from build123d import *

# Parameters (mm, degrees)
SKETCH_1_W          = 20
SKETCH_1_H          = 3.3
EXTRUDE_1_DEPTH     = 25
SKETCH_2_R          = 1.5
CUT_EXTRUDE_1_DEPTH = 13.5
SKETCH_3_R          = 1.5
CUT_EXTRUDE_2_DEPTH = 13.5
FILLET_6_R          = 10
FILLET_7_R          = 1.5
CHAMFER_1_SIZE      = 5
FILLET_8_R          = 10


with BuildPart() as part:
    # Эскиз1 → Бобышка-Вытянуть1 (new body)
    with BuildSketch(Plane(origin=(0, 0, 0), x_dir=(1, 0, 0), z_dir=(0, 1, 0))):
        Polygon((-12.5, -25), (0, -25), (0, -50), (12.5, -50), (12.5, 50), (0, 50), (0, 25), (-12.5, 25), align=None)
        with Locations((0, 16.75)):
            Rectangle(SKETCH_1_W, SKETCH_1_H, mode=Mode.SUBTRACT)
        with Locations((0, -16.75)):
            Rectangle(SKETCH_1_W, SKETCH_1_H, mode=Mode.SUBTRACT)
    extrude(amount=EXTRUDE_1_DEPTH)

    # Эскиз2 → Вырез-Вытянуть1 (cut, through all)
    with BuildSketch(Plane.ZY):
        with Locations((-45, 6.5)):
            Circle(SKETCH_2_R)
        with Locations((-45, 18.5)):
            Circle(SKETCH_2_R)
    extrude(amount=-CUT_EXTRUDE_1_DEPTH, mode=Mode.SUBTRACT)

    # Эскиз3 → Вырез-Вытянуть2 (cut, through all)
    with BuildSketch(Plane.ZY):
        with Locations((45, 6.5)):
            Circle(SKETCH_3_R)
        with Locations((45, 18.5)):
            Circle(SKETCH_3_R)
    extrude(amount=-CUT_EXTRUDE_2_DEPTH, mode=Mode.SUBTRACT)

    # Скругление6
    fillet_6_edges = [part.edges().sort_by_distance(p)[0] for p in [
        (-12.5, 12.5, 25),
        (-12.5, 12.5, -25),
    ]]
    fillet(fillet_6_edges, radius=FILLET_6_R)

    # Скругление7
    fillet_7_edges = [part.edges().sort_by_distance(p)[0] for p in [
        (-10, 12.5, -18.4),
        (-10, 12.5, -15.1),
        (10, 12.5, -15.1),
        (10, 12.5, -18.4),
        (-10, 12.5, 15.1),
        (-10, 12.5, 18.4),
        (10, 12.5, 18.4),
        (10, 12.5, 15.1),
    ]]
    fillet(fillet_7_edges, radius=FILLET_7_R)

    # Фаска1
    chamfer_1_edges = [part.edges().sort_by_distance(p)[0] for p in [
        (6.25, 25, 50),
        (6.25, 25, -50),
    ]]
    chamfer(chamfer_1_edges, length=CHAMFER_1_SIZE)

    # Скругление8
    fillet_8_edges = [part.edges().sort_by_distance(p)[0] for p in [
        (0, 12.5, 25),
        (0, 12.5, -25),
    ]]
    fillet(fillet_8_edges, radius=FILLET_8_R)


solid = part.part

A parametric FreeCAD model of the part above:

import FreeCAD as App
import Part
import Sketcher
Q = App.Units.Quantity


def edges_at(feature, points):
    """Names of the edges that pass closest to the given points."""
    edges = feature.Shape.Edges
    near = lambda p: min(range(len(edges)), key=lambda i: edges[i].distToShape(Part.Vertex(*p))[0])
    return sorted({f"Edge{near(p) + 1}" for p in points})


def add_polygon(sketch, points):
    """Adds a closed chain of lines whose ends are joined by coincident constraints."""
    first, n = sketch.GeometryCount, len(points)
    for a, b in zip(points, points[1:] + points[:1]):
        sketch.addGeometry(Part.LineSegment(App.Vector(*a, 0), App.Vector(*b, 0)), False)
    for i in range(n):
        sketch.addConstraint(Sketcher.Constraint("Coincident", first + i, 2, first + (i + 1) % n, 1))

doc = App.newDocument("Part")
params = doc.addObject("Spreadsheet::Sheet", "Params")
for row, (alias, value) in enumerate([
    ("sketch1_width", "20 mm"),
    ("sketch1_height", "25 mm"),
    ("sketch1_height2", "100 mm"),
    ("sketch1_width2", "12.5 mm"),
    ("sketch1_height3", "3.3 mm"),
    ("pad1_length", "25 mm"),
    ("sketch2_diameter", "3 mm"),
    ("sketch3_diameter", "3 mm"),
    ("fillet_radius", "10 mm"),
    ("fillet2_radius", "1.5 mm"),
    ("chamfer_size", "5 mm"),
    ("fillet3_radius", "10 mm"),
], start=1):
    params.set(f"A{row}", alias)
    params.set(f"B{row}", "=" + value)
    params.setAlias(f"B{row}", alias)

body = doc.addObject("PartDesign::Body", "Body")

sketch1 = body.newObject("Sketcher::SketchObject", "Sketch")
sketch1.AttachmentSupport = (doc.getObject("XZ_Plane"), [""])
sketch1.MapMode = "FlatFace"
add_polygon(sketch1, [(-12.5, 25), (0, 25), (0, 50), (12.5, 50), (12.5, -50), (0, -50), (0, -25), (-12.5, -25)])
add_polygon(sketch1, [(10, 18.4), (-10, 18.4), (-10, 15.1), (10, 15.1)])
add_polygon(sketch1, [(10, -15.1), (-10, -15.1), (-10, -18.4), (10, -18.4)])
sketch1.addConstraint([
    Sketcher.Constraint("Horizontal", 0),
    Sketcher.Constraint("Vertical", 1),
    Sketcher.Constraint("Horizontal", 2),
    Sketcher.Constraint("Vertical", 3),
    Sketcher.Constraint("Horizontal", 4),
    Sketcher.Constraint("Vertical", 5),
    Sketcher.Constraint("Horizontal", 6),
    Sketcher.Constraint("Vertical", 7),
    Sketcher.Constraint("Horizontal", 8),
    Sketcher.Constraint("Vertical", 9),
    Sketcher.Constraint("Horizontal", 10),
    Sketcher.Constraint("Vertical", 11),
    Sketcher.Constraint("Horizontal", 12),
    Sketcher.Constraint("Vertical", 13),
    Sketcher.Constraint("Horizontal", 14),
    Sketcher.Constraint("Vertical", 15),
    Sketcher.Constraint("Symmetric", 1, 2, 4, 2, -1, 1),
    Sketcher.Constraint("Symmetric", 10, 2, 12, 2, -1, 1),
    Sketcher.Constraint("Symmetric", 8, 2, 14, 2, -1, 1),
    Sketcher.Constraint("Symmetric", 0, 2, 5, 2, -1),
    Sketcher.Constraint("Vertical", 9, 2, 12, 2),
    Sketcher.Constraint("Equal", 0, 2),
    Sketcher.Constraint("DistanceX", 8, 2, 8, 1, Q("20 mm")),
    Sketcher.Constraint("DistanceY", 1, 1, 1, 2, Q("25 mm")),
    Sketcher.Constraint("DistanceY", 3, 2, 3, 1, Q("100 mm")),
    Sketcher.Constraint("DistanceX", 0, 1, 0, 2, Q("12.5 mm")),
    Sketcher.Constraint("DistanceY", 9, 2, 9, 1, Q("3.3 mm")),
    Sketcher.Constraint("DistanceY", -1, 1, 8, 2, Q("18.4 mm")),
])
sketch1.setExpression("Constraints[38]", "Params.sketch1_width")
sketch1.setExpression("Constraints[39]", "Params.sketch1_height")
sketch1.setExpression("Constraints[40]", "Params.sketch1_height2")
sketch1.setExpression("Constraints[41]", "Params.sketch1_width2")
sketch1.setExpression("Constraints[42]", "Params.sketch1_height3")
pad1 = body.newObject("PartDesign::Pad", "Pad")
pad1.Profile = sketch1
pad1.setExpression("Length", "Params.pad1_length")
pad1.Reversed = True

sketch2 = body.newObject("Sketcher::SketchObject", "Sketch001")
sketch2.AttachmentSupport = (doc.getObject("YZ_Plane"), [""])
sketch2.MapMode = "FlatFace"
sketch2.addGeometry([
    Part.Circle(App.Vector(6.5, -45, 0), App.Vector(0, 0, 1), 1.5),
    Part.Circle(App.Vector(18.5, -45, 0), App.Vector(0, 0, 1), 1.5),
], False)
sketch2.addConstraint([
    Sketcher.Constraint("Equal", 0, 1),
    Sketcher.Constraint("Horizontal", 0, 3, 1, 3),
    Sketcher.Constraint("Diameter", 0, Q("3 mm")),
    Sketcher.Constraint("DistanceY", 0, 3, -1, 1, Q("45 mm")),
    Sketcher.Constraint("DistanceX", 0, 3, 1, 3, Q("12 mm")),
    Sketcher.Constraint("DistanceX", -1, 1, 0, 3, Q("6.5 mm")),
])
sketch2.setExpression("Constraints[2]", "Params.sketch2_diameter")
pocket1 = body.newObject("PartDesign::Pocket", "Pocket")
pocket1.Profile = sketch2
pocket1.Type = "ThroughAll"
pocket1.Reversed = True

sketch3 = body.newObject("Sketcher::SketchObject", "Sketch002")
sketch3.AttachmentSupport = (doc.getObject("YZ_Plane"), [""])
sketch3.MapMode = "FlatFace"
sketch3.addGeometry([
    Part.Circle(App.Vector(6.5, 45, 0), App.Vector(0, 0, 1), 1.5),
    Part.Circle(App.Vector(18.5, 45, 0), App.Vector(0, 0, 1), 1.5),
], False)
sketch3.addConstraint([
    Sketcher.Constraint("Equal", 0, 1),
    Sketcher.Constraint("Horizontal", 0, 3, 1, 3),
    Sketcher.Constraint("Diameter", 0, Q("3 mm")),
    Sketcher.Constraint("DistanceY", -1, 1, 0, 3, Q("45 mm")),
    Sketcher.Constraint("DistanceX", 0, 3, 1, 3, Q("12 mm")),
    Sketcher.Constraint("DistanceX", -1, 1, 0, 3, Q("6.5 mm")),
])
sketch3.setExpression("Constraints[2]", "Params.sketch3_diameter")
pocket2 = body.newObject("PartDesign::Pocket", "Pocket001")
pocket2.Profile = sketch3
pocket2.Type = "ThroughAll"
pocket2.Reversed = True
doc.recompute()

fillet = body.newObject("PartDesign::Fillet", "Fillet")
fillet.Base = (pocket2, edges_at(pocket2, [(-12.5, 12.5, 25), (-12.5, 12.5, -25)]))
fillet.setExpression("Radius", "Params.fillet_radius")
doc.recompute()

fillet2 = body.newObject("PartDesign::Fillet", "Fillet001")
fillet2.Base = (fillet, edges_at(fillet, [
    (-10, 12.5, -18.4),
    (-10, 12.5, -15.1),
    (10, 12.5, -15.1),
    (10, 12.5, -18.4),
    (-10, 12.5, 15.1),
    (-10, 12.5, 18.4),
    (10, 12.5, 18.4),
    (10, 12.5, 15.1),
]))
fillet2.setExpression("Radius", "Params.fillet2_radius")
doc.recompute()

chamfer = body.newObject("PartDesign::Chamfer", "Chamfer")
chamfer.Base = (fillet2, edges_at(fillet2, [(6.25, 25, 50), (6.25, 25, -50)]))
chamfer.setExpression("Size", "Params.chamfer_size")
doc.recompute()

fillet3 = body.newObject("PartDesign::Fillet", "Fillet002")
fillet3.Base = (chamfer, edges_at(chamfer, [(0, 12.5, 25), (0, 12.5, -25)]))
fillet3.setExpression("Radius", "Params.fillet3_radius")

doc.recompute()
